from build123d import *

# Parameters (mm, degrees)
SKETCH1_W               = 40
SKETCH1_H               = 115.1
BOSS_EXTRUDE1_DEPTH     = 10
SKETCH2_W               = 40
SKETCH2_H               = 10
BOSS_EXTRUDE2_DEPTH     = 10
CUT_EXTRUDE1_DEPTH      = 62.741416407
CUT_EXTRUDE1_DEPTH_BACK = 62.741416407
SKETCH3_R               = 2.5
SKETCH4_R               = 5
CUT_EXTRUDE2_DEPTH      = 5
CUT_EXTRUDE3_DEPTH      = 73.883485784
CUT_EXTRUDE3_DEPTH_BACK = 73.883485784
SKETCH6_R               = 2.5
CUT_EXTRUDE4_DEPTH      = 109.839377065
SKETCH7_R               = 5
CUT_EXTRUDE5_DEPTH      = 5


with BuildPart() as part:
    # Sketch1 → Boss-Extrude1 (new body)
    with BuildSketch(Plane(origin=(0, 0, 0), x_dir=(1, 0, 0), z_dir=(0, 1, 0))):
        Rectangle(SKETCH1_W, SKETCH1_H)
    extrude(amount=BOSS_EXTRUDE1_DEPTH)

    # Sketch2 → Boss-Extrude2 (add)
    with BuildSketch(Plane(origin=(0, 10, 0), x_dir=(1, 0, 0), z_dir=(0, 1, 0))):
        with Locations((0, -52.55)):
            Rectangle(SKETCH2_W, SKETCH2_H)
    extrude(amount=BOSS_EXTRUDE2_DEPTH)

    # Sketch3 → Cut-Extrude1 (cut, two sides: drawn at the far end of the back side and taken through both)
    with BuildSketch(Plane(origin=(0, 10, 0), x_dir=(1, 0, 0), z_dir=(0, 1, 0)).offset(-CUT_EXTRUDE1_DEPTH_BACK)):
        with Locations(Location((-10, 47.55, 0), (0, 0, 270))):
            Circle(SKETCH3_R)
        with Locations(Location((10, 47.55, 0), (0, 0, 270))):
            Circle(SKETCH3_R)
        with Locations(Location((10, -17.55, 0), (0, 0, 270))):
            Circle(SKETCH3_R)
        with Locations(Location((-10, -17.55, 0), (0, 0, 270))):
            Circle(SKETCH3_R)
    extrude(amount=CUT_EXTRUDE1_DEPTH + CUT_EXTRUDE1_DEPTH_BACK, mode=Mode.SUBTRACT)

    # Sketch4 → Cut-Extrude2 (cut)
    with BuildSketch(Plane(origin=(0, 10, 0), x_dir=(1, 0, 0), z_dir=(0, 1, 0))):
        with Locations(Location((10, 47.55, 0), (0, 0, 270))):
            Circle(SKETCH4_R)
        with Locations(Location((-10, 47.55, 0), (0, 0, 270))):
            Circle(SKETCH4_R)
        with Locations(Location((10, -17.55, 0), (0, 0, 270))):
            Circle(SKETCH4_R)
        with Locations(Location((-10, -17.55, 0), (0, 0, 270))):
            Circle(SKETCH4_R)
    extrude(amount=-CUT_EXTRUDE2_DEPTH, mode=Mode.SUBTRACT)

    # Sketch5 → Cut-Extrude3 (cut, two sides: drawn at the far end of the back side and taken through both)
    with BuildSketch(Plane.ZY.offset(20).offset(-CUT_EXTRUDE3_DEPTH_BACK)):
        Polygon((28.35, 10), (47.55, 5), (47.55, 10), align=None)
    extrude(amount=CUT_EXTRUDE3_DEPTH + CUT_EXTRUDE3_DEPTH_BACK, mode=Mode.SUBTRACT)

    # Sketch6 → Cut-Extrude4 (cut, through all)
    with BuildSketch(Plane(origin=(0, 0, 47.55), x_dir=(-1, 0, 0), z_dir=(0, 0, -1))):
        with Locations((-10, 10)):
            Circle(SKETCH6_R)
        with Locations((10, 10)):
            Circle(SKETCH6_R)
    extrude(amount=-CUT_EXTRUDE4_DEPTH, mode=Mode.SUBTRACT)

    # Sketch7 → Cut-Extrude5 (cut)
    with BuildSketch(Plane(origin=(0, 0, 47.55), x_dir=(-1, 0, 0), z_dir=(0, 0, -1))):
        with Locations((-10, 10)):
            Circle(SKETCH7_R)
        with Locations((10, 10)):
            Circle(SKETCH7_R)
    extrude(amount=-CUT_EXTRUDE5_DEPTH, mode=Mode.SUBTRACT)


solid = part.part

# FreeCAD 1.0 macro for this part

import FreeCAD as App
import Part
import Sketcher


def add_polygon(sketch, points):
    """Adds a closed chain of lines whose ends are joined by coincident constraints."""
    first, n = sketch.GeometryCount, len(points)
    for a, b in zip(points, points[1:] + points[:1]):
        sketch.addGeometry(Part.LineSegment(App.Vector(*a, 0), App.Vector(*b, 0)), False)
    for i in range(n):
        sketch.addConstraint(Sketcher.Constraint("Coincident", first + i, 2, first + (i + 1) % n, 1))

doc = App.newDocument("Part")
body = doc.addObject("PartDesign::Body", "Body")

# Sketch on XZ plane
sketch1 = body.newObject("Sketcher::SketchObject", "Sketch")
sketch1.AttachmentSupport = (doc.getObject("XZ_Plane"), [""])
sketch1.MapMode = "FlatFace"
add_polygon(sketch1, [(-20, -58), (-20, 58), (20, 58), (20, -58)])  # lines 0-3
sketch1.addConstraint(Sketcher.Constraint("Vertical", 0))
sketch1.addConstraint(Sketcher.Constraint("Horizontal", 1))
sketch1.addConstraint(Sketcher.Constraint("Vertical", 2))
sketch1.addConstraint(Sketcher.Constraint("Horizontal", 3))
sketch1.addConstraint(Sketcher.Constraint("Symmetric", 0, 2, 2, 2, -1, 1))
sketch1.addConstraint(Sketcher.Constraint("DistanceX", 1, 1, 1, 2, 40.0))
sketch1.addConstraint(Sketcher.Constraint("DistanceY", 0, 1, 0, 2, 115.1))
pad1 = body.newObject("PartDesign::Pad", "Pad")
pad1.Profile = sketch1
pad1.Length = 10
pad1.Reversed = True

# Sketch on XZ plane
sketch2 = body.newObject("Sketcher::SketchObject", "Sketch001")
sketch2.AttachmentSupport = (doc.getObject("XZ_Plane"), [""])
sketch2.MapMode = "FlatFace"
sketch2.AttachmentOffset = App.Placement(App.Vector(0, 0, -10), App.Rotation())
add_polygon(sketch2, [(-20, 48), (-20, 58), (20, 58), (20, 48)])  # lines 0-3
sketch2.addConstraint(Sketcher.Constraint("Vertical", 0))
sketch2.addConstraint(Sketcher.Constraint("Horizontal", 1))
sketch2.addConstraint(Sketcher.Constraint("Vertical", 2))
sketch2.addConstraint(Sketcher.Constraint("Horizontal", 3))
sketch2.addConstraint(Sketcher.Constraint("DistanceX", 1, 1, 1, 2, 40.0))
sketch2.addConstraint(Sketcher.Constraint("DistanceY", 0, 1, 0, 2, 10.0))
sketch2.addConstraint(Sketcher.Constraint("DistanceX", 0, 2, -1, 1, 20.0))
sketch2.addConstraint(Sketcher.Constraint("DistanceY", -1, 1, 0, 2, 57.55))
pad2 = body.newObject("PartDesign::Pad", "Pad001")
pad2.Profile = sketch2
pad2.Length = 10
pad2.Reversed = True

# Sketch on XZ plane
sketch3 = body.newObject("Sketcher::SketchObject", "Sketch002")
sketch3.AttachmentSupport = (doc.getObject("XZ_Plane"), [""])
sketch3.MapMode = "FlatFace"
sketch3.AttachmentOffset = App.Placement(App.Vector(0, 0, -10), App.Rotation())
sketch3.addGeometry(Part.Circle(App.Vector(-10, -47.5, 0), App.Vector(0, 0, 1), 2.5), False)
sketch3.addGeometry(Part.Circle(App.Vector(10, -47.5, 0), App.Vector(0, 0, 1), 2.5), False)
sketch3.addGeometry(Part.Circle(App.Vector(10, 17.6, 0), App.Vector(0, 0, 1), 2.5), False)
sketch3.addGeometry(Part.Circle(App.Vector(-10, 17.6, 0), App.Vector(0, 0, 1), 2.5), False)
sketch3.addConstraint(Sketcher.Constraint("Equal", 0, 1))
sketch3.addConstraint(Sketcher.Constraint("Equal", 1, 2))
sketch3.addConstraint(Sketcher.Constraint("Equal", 2, 3))
sketch3.addConstraint(Sketcher.Constraint("Symmetric", 0, 3, 1, 3, -2))
sketch3.addConstraint(Sketcher.Constraint("Symmetric", 2, 3, 3, 3, -2))
sketch3.addConstraint(Sketcher.Constraint("Vertical", 1, 3, 2, 3))
sketch3.addConstraint(Sketcher.Constraint("Diameter", 0, 5.0))
sketch3.addConstraint(Sketcher.Constraint("DistanceX", 0, 3, -1, 1, 10.0))
sketch3.addConstraint(Sketcher.Constraint("DistanceY", 1, 3, 2, 3, 65.1))
sketch3.addConstraint(Sketcher.Constraint("DistanceY", 0, 3, -1, 1, 47.55))
pocket1 = body.newObject("PartDesign::Pocket", "Pocket")
pocket1.Profile = sketch3
pocket1.Type = "ThroughAll"
pocket1.Midplane = True

# Sketch on XZ plane
sketch4 = body.newObject("Sketcher::SketchObject", "Sketch003")
sketch4.AttachmentSupport = (doc.getObject("XZ_Plane"), [""])
sketch4.MapMode = "FlatFace"
sketch4.AttachmentOffset = App.Placement(App.Vector(0, 0, -10), App.Rotation())
sketch4.addGeometry(Part.Circle(App.Vector(10, -48, 0), App.Vector(0, 0, 1), 5), False)
sketch4.addGeometry(Part.Circle(App.Vector(-10, -48, 0), App.Vector(0, 0, 1), 5), False)
sketch4.addGeometry(Part.Circle(App.Vector(10, 18, 0), App.Vector(0, 0, 1), 5), False)
sketch4.addGeometry(Part.Circle(App.Vector(-10, 18, 0), App.Vector(0, 0, 1), 5), False)
sketch4.addConstraint(Sketcher.Constraint("Equal", 0, 1))
sketch4.addConstraint(Sketcher.Constraint("Equal", 1, 2))
sketch4.addConstraint(Sketcher.Constraint("Equal", 2, 3))
sketch4.addConstraint(Sketcher.Constraint("Symmetric", 0, 3, 1, 3, -2))
sketch4.addConstraint(Sketcher.Constraint("Symmetric", 2, 3, 3, 3, -2))
sketch4.addConstraint(Sketcher.Constraint("Vertical", 0, 3, 2, 3))
sketch4.addConstraint(Sketcher.Constraint("Diameter", 0, 10.0))
sketch4.addConstraint(Sketcher.Constraint("DistanceX", -1, 1, 0, 3, 10.0))
sketch4.addConstraint(Sketcher.Constraint("DistanceY", 0, 3, 2, 3, 65.1))
sketch4.addConstraint(Sketcher.Constraint("DistanceY", 0, 3, -1, 1, 47.55))
pocket2 = body.newObject("PartDesign::Pocket", "Pocket001")
pocket2.Profile = sketch4
pocket2.Length = 5
pocket2.Reversed = True

# Sketch on YZ plane
sketch5 = body.newObject("Sketcher::SketchObject", "Sketch004")
sketch5.AttachmentSupport = (doc.getObject("YZ_Plane"), [""])
sketch5.MapMode = "FlatFace"
sketch5.AttachmentOffset = App.Placement(App.Vector(0, 0, -20), App.Rotation())
add_polygon(sketch5, [(10, 28), (5, 48), (10, 48)])  # lines 0-2
sketch5.addConstraint(Sketcher.Constraint("Horizontal", 1))
sketch5.addConstraint(Sketcher.Constraint("Vertical", 2))
sketch5.addConstraint(Sketcher.Constraint("DistanceX", 1, 1, 1, 2, 5.0))
sketch5.addConstraint(Sketcher.Constraint("DistanceY", 2, 2, 2, 1, 19.2))
sketch5.addConstraint(Sketcher.Constraint("DistanceX", -1, 1, 0, 2, 5.0))
sketch5.addConstraint(Sketcher.Constraint("DistanceY", -1, 1, 0, 2, 47.55))
pocket3 = body.newObject("PartDesign::Pocket", "Pocket002")
pocket3.Profile = sketch5
pocket3.Type = "ThroughAll"
pocket3.Midplane = True

# Sketch on XY plane
sketch6 = body.newObject("Sketcher::SketchObject", "Sketch005")
sketch6.AttachmentSupport = (doc.getObject("XY_Plane"), [""])
sketch6.MapMode = "FlatFace"
sketch6.AttachmentOffset = App.Placement(App.Vector(0, 0, 47.55), App.Rotation())
sketch6.addGeometry(Part.Circle(App.Vector(10, 10, 0), App.Vector(0, 0, 1), 2.5), False)
sketch6.addGeometry(Part.Circle(App.Vector(-10, 10, 0), App.Vector(0, 0, 1), 2.5), False)
sketch6.addConstraint(Sketcher.Constraint("Equal", 0, 1))
sketch6.addConstraint(Sketcher.Constraint("Symmetric", 0, 3, 1, 3, -2))
sketch6.addConstraint(Sketcher.Constraint("Diameter", 0, 5.0))
sketch6.addConstraint(Sketcher.Constraint("DistanceX", -1, 1, 0, 3, 10.0))
sketch6.addConstraint(Sketcher.Constraint("DistanceY", -1, 1, 0, 3, 10.0))
pocket4 = body.newObject("PartDesign::Pocket", "Pocket003")
pocket4.Profile = sketch6
pocket4.Type = "ThroughAll"
pocket4.Reversed = True

# Sketch on XY plane
sketch7 = body.newObject("Sketcher::SketchObject", "Sketch006")
sketch7.AttachmentSupport = (doc.getObject("XY_Plane"), [""])
sketch7.MapMode = "FlatFace"
sketch7.AttachmentOffset = App.Placement(App.Vector(0, 0, 47.55), App.Rotation())
sketch7.addGeometry(Part.Circle(App.Vector(10, 10, 0), App.Vector(0, 0, 1), 5), False)
sketch7.addGeometry(Part.Circle(App.Vector(-10, 10, 0), App.Vector(0, 0, 1), 5), False)
sketch7.addConstraint(Sketcher.Constraint("Equal", 0, 1))
sketch7.addConstraint(Sketcher.Constraint("Symmetric", 0, 3, 1, 3, -2))
sketch7.addConstraint(Sketcher.Constraint("Diameter", 0, 10.0))
sketch7.addConstraint(Sketcher.Constraint("DistanceX", -1, 1, 0, 3, 10.0))
sketch7.addConstraint(Sketcher.Constraint("DistanceY", -1, 1, 0, 3, 10.0))
pocket5 = body.newObject("PartDesign::Pocket", "Pocket004")
pocket5.Profile = sketch7
pocket5.Length = 5
pocket5.Reversed = True

doc.recompute()
